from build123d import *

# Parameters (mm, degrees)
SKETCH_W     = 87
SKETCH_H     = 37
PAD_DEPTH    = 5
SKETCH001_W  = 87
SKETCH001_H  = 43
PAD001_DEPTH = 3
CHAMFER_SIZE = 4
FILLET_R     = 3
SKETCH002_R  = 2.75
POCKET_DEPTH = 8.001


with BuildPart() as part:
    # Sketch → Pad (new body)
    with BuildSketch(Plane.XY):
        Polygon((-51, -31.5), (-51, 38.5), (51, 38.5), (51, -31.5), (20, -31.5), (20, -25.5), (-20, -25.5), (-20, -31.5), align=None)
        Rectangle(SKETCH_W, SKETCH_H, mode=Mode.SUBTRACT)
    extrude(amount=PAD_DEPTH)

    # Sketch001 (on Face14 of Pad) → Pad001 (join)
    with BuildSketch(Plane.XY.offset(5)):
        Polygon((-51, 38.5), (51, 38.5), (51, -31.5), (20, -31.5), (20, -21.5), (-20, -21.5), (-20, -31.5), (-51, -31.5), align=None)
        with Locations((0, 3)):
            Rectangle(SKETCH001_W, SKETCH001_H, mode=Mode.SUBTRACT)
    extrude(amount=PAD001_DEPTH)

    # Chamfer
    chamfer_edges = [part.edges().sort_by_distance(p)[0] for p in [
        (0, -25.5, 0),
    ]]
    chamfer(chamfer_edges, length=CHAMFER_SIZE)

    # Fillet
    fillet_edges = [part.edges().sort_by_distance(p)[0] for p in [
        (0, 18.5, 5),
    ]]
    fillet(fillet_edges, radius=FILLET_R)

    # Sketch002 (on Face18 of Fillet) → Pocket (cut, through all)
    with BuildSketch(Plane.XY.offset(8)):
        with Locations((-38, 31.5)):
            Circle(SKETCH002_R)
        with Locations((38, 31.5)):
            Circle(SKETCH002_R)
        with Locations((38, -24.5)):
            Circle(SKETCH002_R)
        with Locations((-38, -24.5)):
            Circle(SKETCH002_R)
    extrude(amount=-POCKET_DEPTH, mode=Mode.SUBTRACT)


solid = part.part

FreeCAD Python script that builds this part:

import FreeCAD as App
import Part
import Sketcher
from FreeCAD import Vector
Q = App.Units.Quantity


def edges_at(feature, points):
    """Names of the edges that pass closest to the given points."""
    edges = feature.Shape.Edges
    near = lambda p: min(range(len(edges)), key=lambda i: edges[i].distToShape(Part.Vertex(*p))[0])
    return sorted({f"Edge{near(p) + 1}" for p in points})


def add_polygon(sketch, points):
    """Adds a closed chain of lines whose ends are joined by coincident constraints."""
    first, n = sketch.GeometryCount, len(points)
    for a, b in zip(points, points[1:] + points[:1]):
        sketch.addGeometry(Part.LineSegment(App.Vector(*a, 0), App.Vector(*b, 0)), False)
    for i in range(n):
        sketch.addConstraint(Sketcher.Constraint("Coincident", first + i, 2, first + (i + 1) % n, 1))

doc = App.newDocument("Part")
body = doc.addObject("PartDesign::Body", "Body")

# Sketch on XY plane
sketch1 = doc.addObject("Sketcher::SketchObject", "Sketch")
body.addObject(sketch1)
sketch1.AttachmentSupport = (doc.XY_Plane, [""])
sketch1.MapMode = "FlatFace"
add_polygon(sketch1, [(-51, 38), (-51, -32), (-20, -32), (-20, -26), (20, -26), (20, -32), (51, -32), (51, 38)])  # lines 0-7
add_polygon(sketch1, [(-44, -18), (-44, 18), (44, 18), (44, -18)])  # lines 8-11
sketch1.addConstraint(Sketcher.Constraint("Vertical", 0))
sketch1.addConstraint(Sketcher.Constraint("Horizontal", 1))
sketch1.addConstraint(Sketcher.Constraint("Vertical", 2))
sketch1.addConstraint(Sketcher.Constraint("Horizontal", 3))
sketch1.addConstraint(Sketcher.Constraint("Vertical", 4))
sketch1.addConstraint(Sketcher.Constraint("Horizontal", 5))
sketch1.addConstraint(Sketcher.Constraint("Vertical", 6))
sketch1.addConstraint(Sketcher.Constraint("Horizontal", 7))
sketch1.addConstraint(Sketcher.Constraint("Vertical", 8))
sketch1.addConstraint(Sketcher.Constraint("Horizontal", 9))
sketch1.addConstraint(Sketcher.Constraint("Vertical", 10))
sketch1.addConstraint(Sketcher.Constraint("Horizontal", 11))
sketch1.addConstraint(Sketcher.Constraint("Symmetric", 8, 2, 10, 2, -1, 1))
sketch1.addConstraint(Sketcher.Constraint("Symmetric", 1, 2, 4, 2, -2))
sketch1.addConstraint(Sketcher.Constraint("Equal", 1, 5))
sketch1.addConstraint(Sketcher.Constraint("DistanceX", 1, 1, 1, 2, Q("31 mm")))
sketch1.addConstraint(Sketcher.Constraint("DistanceX", 3, 1, 3, 2, Q("40 mm")))
sketch1.addConstraint(Sketcher.Constraint("DistanceX", 9, 1, 9, 2, Q("87 mm")))
sketch1.addConstraint(Sketcher.Constraint("DistanceY", 0, 2, 0, 1, Q("70 mm")))
sketch1.addConstraint(Sketcher.Constraint("DistanceY", 2, 1, 2, 2, Q("6 mm")))
sketch1.addConstraint(Sketcher.Constraint("DistanceY", 8, 1, 8, 2, Q("37 mm")))
sketch1.addConstraint(Sketcher.Constraint("DistanceY", 8, 2, 7, 2, Q("20 mm")))
pad1 = doc.addObject("PartDesign::Pad", "Pad")
body.addObject(pad1)
pad1.Profile = sketch1
pad1.Length = 5

# Sketch on XY plane
sketch2 = doc.addObject("Sketcher::SketchObject", "Sketch001")
body.addObject(sketch2)
sketch2.AttachmentSupport = (doc.XY_Plane, [""])
sketch2.MapMode = "FlatFace"
sketch2.AttachmentOffset = App.Placement(Vector(0, 0, 5), App.Rotation())
add_polygon(sketch2, [(51, 38), (-51, 38), (-51, -32), (-20, -32), (-20, -22), (20, -22), (20, -32), (51, -32)])  # lines 0-7
add_polygon(sketch2, [(-44, -18), (-44, 24), (44, 24), (44, -18)])  # lines 8-11
sketch2.addConstraint(Sketcher.Constraint("Horizontal", 0))
sketch2.addConstraint(Sketcher.Constraint("Vertical", 1))
sketch2.addConstraint(Sketcher.Constraint("Horizontal", 2))
sketch2.addConstraint(Sketcher.Constraint("Vertical", 3))
sketch2.addConstraint(Sketcher.Constraint("Horizontal", 4))
sketch2.addConstraint(Sketcher.Constraint("Vertical", 5))
sketch2.addConstraint(Sketcher.Constraint("Horizontal", 6))
sketch2.addConstraint(Sketcher.Constraint("Vertical", 7))
sketch2.addConstraint(Sketcher.Constraint("Vertical", 8))
sketch2.addConstraint(Sketcher.Constraint("Horizontal", 9))
sketch2.addConstraint(Sketcher.Constraint("Vertical", 10))
sketch2.addConstraint(Sketcher.Constraint("Horizontal", 11))
sketch2.addConstraint(Sketcher.Constraint("Symmetric", 2, 2, 5, 2, -2))
sketch2.addConstraint(Sketcher.Constraint("Equal", 2, 6))
sketch2.addConstraint(Sketcher.Constraint("DistanceX", 0, 2, 0, 1, Q("102 mm")))
sketch2.addConstraint(Sketcher.Constraint("DistanceX", 2, 1, 2, 2, Q("31 mm")))
sketch2.addConstraint(Sketcher.Constraint("DistanceX", 9, 1, 9, 2, Q("87 mm")))
sketch2.addConstraint(Sketcher.Constraint("DistanceY", 1, 2, 1, 1, Q("70 mm")))
sketch2.addConstraint(Sketcher.Constraint("DistanceY", 3, 1, 3, 2, Q("10 mm")))
sketch2.addConstraint(Sketcher.Constraint("DistanceY", 8, 1, 8, 2, Q("43 mm")))
sketch2.addConstraint(Sketcher.Constraint("DistanceY", 8, 2, 0, 2, Q("14 mm")))
sketch2.addConstraint(Sketcher.Constraint("DistanceY", -1, 1, 0, 2, Q("38.5 mm")))
sketch2.addConstraint(Sketcher.Constraint("DistanceX", 8, 2, -1, 1, Q("43.5 mm")))
pad2 = doc.addObject("PartDesign::Pad", "Pad001")
body.addObject(pad2)
pad2.Profile = sketch2
pad2.Length = 3
doc.recompute()

chamfer = doc.addObject("PartDesign::Chamfer", "Chamfer")
body.addObject(chamfer)
chamfer.Base = (pad2, edges_at(pad2, [(0, -25.5, 0)]))
chamfer.Size = 4
doc.recompute()

fillet = doc.addObject("PartDesign::Fillet", "Fillet")
body.addObject(fillet)
fillet.Base = (chamfer, edges_at(chamfer, [(0, 18.5, 5)]))
fillet.Radius = 3

# Sketch on XY plane
sketch3 = doc.addObject("Sketcher::SketchObject", "Sketch002")
body.addObject(sketch3)
sketch3.AttachmentSupport = (doc.XY_Plane, [""])
sketch3.MapMode = "FlatFace"
sketch3.AttachmentOffset = App.Placement(Vector(0, 0, 8), App.Rotation())
sketch3.addGeometry(Part.Circle(Vector(-38, 31.5, 0), Vector(0, 0, 1), 2.8), False)
sketch3.addGeometry(Part.Circle(Vector(38, 31.5, 0), Vector(0, 0, 1), 2.8), False)
sketch3.addGeometry(Part.Circle(Vector(38, -24.5, 0), Vector(0, 0, 1), 2.8), False)
sketch3.addGeometry(Part.Circle(Vector(-38, -24.5, 0), Vector(0, 0, 1), 2.8), False)
sketch3.addConstraint(Sketcher.Constraint("Equal", 0, 1))
sketch3.addConstraint(Sketcher.Constraint("Equal", 1, 2))
sketch3.addConstraint(Sketcher.Constraint("Equal", 2, 3))
sketch3.addConstraint(Sketcher.Constraint("Symmetric", 0, 3, 1, 3, -2))
sketch3.addConstraint(Sketcher.Constraint("Symmetric", 2, 3, 3, 3, -2))
sketch3.addConstraint(Sketcher.Constraint("Vertical", 1, 3, 2, 3))
sketch3.addConstraint(Sketcher.Constraint("Diameter", 0, Q("5.5 mm")))
sketch3.addConstraint(Sketcher.Constraint("DistanceX", 0, 3, -1, 1, Q("38 mm")))
sketch3.addConstraint(Sketcher.Constraint("DistanceY", 2, 3, 1, 3, Q("56 mm")))
sketch3.addConstraint(Sketcher.Constraint("DistanceY", -1, 1, 0, 3, Q("31.5 mm")))
pocket1 = doc.addObject("PartDesign::Pocket", "Pocket")
body.addObject(pocket1)
pocket1.Profile = sketch3
pocket1.Type = "ThroughAll"

doc.recompute()
